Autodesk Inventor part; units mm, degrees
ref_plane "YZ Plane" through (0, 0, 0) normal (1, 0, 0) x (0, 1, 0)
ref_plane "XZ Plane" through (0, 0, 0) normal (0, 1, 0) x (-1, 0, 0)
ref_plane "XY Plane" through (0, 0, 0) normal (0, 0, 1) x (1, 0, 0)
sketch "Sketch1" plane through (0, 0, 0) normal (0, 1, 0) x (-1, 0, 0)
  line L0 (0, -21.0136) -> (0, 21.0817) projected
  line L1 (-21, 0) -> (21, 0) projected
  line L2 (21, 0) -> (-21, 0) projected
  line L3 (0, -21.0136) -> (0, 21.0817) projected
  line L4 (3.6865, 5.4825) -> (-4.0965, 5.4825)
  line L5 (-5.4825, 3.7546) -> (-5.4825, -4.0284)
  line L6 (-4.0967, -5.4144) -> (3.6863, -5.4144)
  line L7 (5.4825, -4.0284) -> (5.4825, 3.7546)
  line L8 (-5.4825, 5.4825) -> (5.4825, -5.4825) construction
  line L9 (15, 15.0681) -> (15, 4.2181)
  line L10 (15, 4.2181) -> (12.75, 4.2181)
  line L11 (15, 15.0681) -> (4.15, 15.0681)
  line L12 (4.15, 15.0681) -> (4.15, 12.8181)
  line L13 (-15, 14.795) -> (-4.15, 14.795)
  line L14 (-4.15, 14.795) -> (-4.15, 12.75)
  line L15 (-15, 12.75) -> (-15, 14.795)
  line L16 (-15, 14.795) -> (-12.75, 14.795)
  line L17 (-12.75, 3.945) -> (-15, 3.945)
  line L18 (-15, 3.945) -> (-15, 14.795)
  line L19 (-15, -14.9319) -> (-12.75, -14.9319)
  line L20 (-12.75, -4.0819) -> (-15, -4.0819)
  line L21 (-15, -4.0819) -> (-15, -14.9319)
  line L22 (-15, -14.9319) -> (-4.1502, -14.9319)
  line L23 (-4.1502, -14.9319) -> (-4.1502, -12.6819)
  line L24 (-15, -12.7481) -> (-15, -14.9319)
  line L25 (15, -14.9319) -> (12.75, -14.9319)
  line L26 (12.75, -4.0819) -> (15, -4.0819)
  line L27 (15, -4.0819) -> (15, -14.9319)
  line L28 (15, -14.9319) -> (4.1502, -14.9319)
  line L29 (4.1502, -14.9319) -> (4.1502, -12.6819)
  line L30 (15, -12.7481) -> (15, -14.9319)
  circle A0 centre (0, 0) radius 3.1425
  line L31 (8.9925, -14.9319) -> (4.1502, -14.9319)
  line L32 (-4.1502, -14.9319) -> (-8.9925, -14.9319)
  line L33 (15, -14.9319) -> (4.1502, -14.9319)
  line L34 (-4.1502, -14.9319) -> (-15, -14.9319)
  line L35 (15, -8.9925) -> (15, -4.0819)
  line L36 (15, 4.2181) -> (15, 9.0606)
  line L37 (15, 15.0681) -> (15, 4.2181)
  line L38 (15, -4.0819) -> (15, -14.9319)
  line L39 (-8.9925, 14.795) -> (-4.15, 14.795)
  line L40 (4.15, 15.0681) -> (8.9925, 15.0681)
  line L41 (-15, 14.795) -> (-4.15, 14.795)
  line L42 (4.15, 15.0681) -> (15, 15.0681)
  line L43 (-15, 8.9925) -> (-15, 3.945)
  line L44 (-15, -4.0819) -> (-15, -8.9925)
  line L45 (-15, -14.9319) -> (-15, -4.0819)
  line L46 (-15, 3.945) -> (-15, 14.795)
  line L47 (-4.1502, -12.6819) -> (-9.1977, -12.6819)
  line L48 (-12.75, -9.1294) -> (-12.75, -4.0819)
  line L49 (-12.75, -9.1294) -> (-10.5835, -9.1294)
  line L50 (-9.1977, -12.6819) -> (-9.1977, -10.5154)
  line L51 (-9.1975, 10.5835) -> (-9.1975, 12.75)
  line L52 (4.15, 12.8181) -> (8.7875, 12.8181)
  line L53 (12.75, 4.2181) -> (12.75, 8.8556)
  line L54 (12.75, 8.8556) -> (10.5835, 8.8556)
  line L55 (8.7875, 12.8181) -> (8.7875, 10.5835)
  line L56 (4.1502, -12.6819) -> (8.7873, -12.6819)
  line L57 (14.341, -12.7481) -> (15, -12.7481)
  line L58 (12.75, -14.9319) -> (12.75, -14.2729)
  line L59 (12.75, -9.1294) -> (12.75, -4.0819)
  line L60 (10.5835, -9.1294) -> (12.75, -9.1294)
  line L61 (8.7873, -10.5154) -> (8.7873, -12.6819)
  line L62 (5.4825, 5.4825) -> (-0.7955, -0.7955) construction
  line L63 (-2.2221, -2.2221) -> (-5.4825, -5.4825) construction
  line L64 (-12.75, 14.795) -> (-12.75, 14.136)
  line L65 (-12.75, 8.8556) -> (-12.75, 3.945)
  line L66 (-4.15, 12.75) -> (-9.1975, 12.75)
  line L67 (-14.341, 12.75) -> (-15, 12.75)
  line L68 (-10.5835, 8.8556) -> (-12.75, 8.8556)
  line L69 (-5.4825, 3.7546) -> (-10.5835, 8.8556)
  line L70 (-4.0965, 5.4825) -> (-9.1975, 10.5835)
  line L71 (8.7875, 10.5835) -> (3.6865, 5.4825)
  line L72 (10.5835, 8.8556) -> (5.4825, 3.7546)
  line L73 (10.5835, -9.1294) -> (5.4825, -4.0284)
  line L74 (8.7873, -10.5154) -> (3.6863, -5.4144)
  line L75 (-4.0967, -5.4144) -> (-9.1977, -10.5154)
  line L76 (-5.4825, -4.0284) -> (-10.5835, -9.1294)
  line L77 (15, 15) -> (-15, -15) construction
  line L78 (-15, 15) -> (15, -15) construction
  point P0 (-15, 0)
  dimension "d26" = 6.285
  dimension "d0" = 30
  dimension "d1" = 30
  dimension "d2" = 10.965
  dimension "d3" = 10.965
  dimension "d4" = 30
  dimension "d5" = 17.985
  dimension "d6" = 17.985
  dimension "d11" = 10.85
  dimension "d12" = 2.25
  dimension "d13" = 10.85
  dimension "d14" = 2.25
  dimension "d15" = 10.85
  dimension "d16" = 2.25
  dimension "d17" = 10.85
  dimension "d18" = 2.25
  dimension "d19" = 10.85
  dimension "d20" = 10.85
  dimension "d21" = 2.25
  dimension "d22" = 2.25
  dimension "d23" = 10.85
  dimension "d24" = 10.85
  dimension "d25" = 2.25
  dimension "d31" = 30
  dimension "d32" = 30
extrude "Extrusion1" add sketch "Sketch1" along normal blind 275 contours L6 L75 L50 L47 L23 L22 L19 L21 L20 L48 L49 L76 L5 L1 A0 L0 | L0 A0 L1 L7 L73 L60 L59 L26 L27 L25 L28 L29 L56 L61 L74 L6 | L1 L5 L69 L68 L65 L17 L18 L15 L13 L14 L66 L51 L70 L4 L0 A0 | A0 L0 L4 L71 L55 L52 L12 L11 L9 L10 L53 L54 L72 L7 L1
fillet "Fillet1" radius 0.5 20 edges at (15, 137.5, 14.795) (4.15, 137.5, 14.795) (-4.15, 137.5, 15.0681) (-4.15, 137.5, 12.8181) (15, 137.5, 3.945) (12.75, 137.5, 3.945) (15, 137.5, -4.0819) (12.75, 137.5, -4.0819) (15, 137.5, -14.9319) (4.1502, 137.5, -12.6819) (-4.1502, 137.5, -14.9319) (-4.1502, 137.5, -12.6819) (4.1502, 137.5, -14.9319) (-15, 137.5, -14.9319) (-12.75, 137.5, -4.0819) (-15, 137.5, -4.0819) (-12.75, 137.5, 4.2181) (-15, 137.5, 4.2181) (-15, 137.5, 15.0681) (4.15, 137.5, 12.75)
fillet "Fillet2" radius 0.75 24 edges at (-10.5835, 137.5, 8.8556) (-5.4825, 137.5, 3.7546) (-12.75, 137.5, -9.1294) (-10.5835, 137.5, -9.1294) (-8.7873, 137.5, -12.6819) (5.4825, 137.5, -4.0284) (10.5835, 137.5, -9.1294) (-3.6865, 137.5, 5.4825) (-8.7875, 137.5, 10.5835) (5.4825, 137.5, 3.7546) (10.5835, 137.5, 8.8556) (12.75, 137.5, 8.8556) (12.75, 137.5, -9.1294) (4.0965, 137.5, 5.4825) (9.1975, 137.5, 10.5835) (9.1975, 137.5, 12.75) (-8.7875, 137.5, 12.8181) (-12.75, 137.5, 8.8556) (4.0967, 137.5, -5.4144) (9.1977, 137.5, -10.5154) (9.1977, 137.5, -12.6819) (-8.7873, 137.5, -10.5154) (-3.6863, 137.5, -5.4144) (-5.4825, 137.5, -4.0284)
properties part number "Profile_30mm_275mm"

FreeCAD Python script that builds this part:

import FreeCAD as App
import Part
import Sketcher
from FreeCAD import Vector


def edges_at(feature, points):
    """Names of the edges that pass closest to the given points."""
    edges = feature.Shape.Edges
    near = lambda p: min(range(len(edges)), key=lambda i: edges[i].distToShape(Part.Vertex(*p))[0])
    return sorted({f"Edge{near(p) + 1}" for p in points})


def add_polygon(sketch, points):
    """Adds a closed chain of lines whose ends are joined by coincident constraints."""
    first, n = sketch.GeometryCount, len(points)
    for a, b in zip(points, points[1:] + points[:1]):
        sketch.addGeometry(Part.LineSegment(App.Vector(*a, 0), App.Vector(*b, 0)), False)
    for i in range(n):
        sketch.addConstraint(Sketcher.Constraint("Coincident", first + i, 2, first + (i + 1) % n, 1))

doc = App.newDocument("Part")
body = doc.addObject("PartDesign::Body", "Body")

# Sketch on XZ plane
sketch1 = body.newObject("Sketcher::SketchObject", "Sketch")
sketch1.AttachmentSupport = (doc.getObject("XZ_Plane"), [""])
sketch1.MapMode = "FlatFace"
add_polygon(sketch1, [(4.0967, -5.4144), (-3.6863, -5.4144), (-8.7873, -10.5154), (-8.7873, -12.6819), (-4.1502, -12.6819), (-4.1502, -14.9319), (-15, -14.9319), (-15, -4.0819), (-12.75, -4.0819), (-12.75, -9.1294), (-10.5835, -9.1294), (-5.4825, -4.0284), (-5.4825, 3.7546), (-10.5835, 8.8556), (-12.75, 8.8556), (-12.75, 4.2181), (-15, 4.2181), (-15, 15.0681), (-4.15, 15.0681), (-4.15, 12.8181), (-8.7875, 12.8181), (-8.7875, 10.5835), (-3.6865, 5.4825), (4.0965, 5.4825), (9.1975, 10.5835), (9.1975, 12.75), (4.15, 12.75), (4.15, 14.795), (15, 14.795), (15, 3.945), (12.75, 3.945), (12.75, 8.8556), (10.5835, 8.8556), (5.4825, 3.7546), (5.4825, -4.0284), (10.5835, -9.1294), (12.75, -9.1294), (12.75, -4.0819), (15, -4.0819), (15, -14.9319), (4.1502, -14.9319), (4.1502, -12.6819), (9.1977, -12.6819), (9.1977, -10.5154)])  # lines 0-43
sketch1.addGeometry(Part.Circle(Vector(0, 0, 0), Vector(0, 0, 1), 3.1425), False)  # 44
sketch1.addConstraint([
    Sketcher.Constraint("Horizontal", 0),
    Sketcher.Constraint("Vertical", 2),
    Sketcher.Constraint("Horizontal", 3),
    Sketcher.Constraint("Vertical", 4),
    Sketcher.Constraint("Horizontal", 5),
    Sketcher.Constraint("Vertical", 6),
    Sketcher.Constraint("Horizontal", 7),
    Sketcher.Constraint("Vertical", 8),
    Sketcher.Constraint("Horizontal", 9),
    Sketcher.Constraint("Vertical", 11),
    Sketcher.Constraint("Horizontal", 13),
    Sketcher.Constraint("Vertical", 14),
    Sketcher.Constraint("Horizontal", 15),
    Sketcher.Constraint("Vertical", 16),
    Sketcher.Constraint("Horizontal", 17),
    Sketcher.Constraint("Vertical", 18),
    Sketcher.Constraint("Horizontal", 19),
    Sketcher.Constraint("Vertical", 20),
    Sketcher.Constraint("Horizontal", 22),
    Sketcher.Constraint("Vertical", 24),
    Sketcher.Constraint("Horizontal", 25),
    Sketcher.Constraint("Vertical", 26),
    Sketcher.Constraint("Horizontal", 27),
    Sketcher.Constraint("Vertical", 28),
    Sketcher.Constraint("Horizontal", 29),
    Sketcher.Constraint("Vertical", 30),
    Sketcher.Constraint("Horizontal", 31),
    Sketcher.Constraint("Vertical", 33),
    Sketcher.Constraint("Horizontal", 35),
    Sketcher.Constraint("Vertical", 36),
    Sketcher.Constraint("Horizontal", 37),
    Sketcher.Constraint("Vertical", 38),
    Sketcher.Constraint("Horizontal", 39),
    Sketcher.Constraint("Vertical", 40),
    Sketcher.Constraint("Horizontal", 41),
    Sketcher.Constraint("Vertical", 42),
    Sketcher.Constraint("Coincident", 44, 3, -1, 1),
    Sketcher.Constraint("Symmetric", 13, 2, 30, 2, -2),
    Sketcher.Constraint("Symmetric", 11, 2, 32, 2, -2),
    Sketcher.Constraint("Symmetric", 9, 2, 34, 2, -2),
    Sketcher.Constraint("Symmetric", 7, 2, 36, 2, -2),
    Sketcher.Constraint("Symmetric", 5, 2, 38, 2, -2),
    Sketcher.Constraint("Symmetric", 3, 2, 40, 2, -2),
    Sketcher.Constraint("Parallel", 1, 10),
    Sketcher.Constraint("Perpendicular", 10, 12),
    Sketcher.Constraint("Parallel", 12, 21),
    Sketcher.Constraint("Perpendicular", 21, 23),
    Sketcher.Constraint("Parallel", 23, 32),
    Sketcher.Constraint("Perpendicular", 32, 34),
    Sketcher.Constraint("Parallel", 34, 43),
    Sketcher.Constraint("Horizontal", 20, 2, 23, 2),
    Sketcher.Constraint("Horizontal", 10, 2, 33, 2),
    Sketcher.Constraint("Horizontal", 1, 2, 42, 2),
    Sketcher.Constraint("Vertical", 9, 2, 12, 2),
    Sketcher.Constraint("Vertical", 8, 2, 13, 2),
    Sketcher.Constraint("Vertical", 6, 2, 15, 2),
    Sketcher.Constraint("Vertical", 4, 2, 17, 2),
    Sketcher.Constraint("Vertical", 2, 2, 19, 2),
    Sketcher.Constraint("Vertical", 0, 2, 21, 2),
    Sketcher.Constraint("Vertical", 28, 2, 37, 2),
    Sketcher.Constraint("Vertical", 26, 2, 39, 2),
    Sketcher.Constraint("Vertical", 24, 2, 41, 2),
    Sketcher.Constraint("Equal", 35, 2),
    Sketcher.Constraint("Equal", 37, 4),
    Sketcher.Constraint("Equal", 27, 6),
    Sketcher.Constraint("Equal", 41, 8),
    Sketcher.Constraint("Equal", 22, 11),
    Sketcher.Constraint("Equal", 19, 14),
    Sketcher.Constraint("Equal", 6, 16),
    Sketcher.Constraint("Equal", 4, 18),
    Sketcher.Constraint("Equal", 2, 24),
    Sketcher.Constraint("Equal", 16, 28),
    Sketcher.Constraint("Equal", 1, 10),
    Sketcher.Constraint("Diameter", 44, 6.285),
    Sketcher.Constraint("DistanceX", 7, 1, 7, 2, 2.25),
    Sketcher.Constraint("DistanceX", 17, 1, 17, 2, 10.85),
    Sketcher.Constraint("DistanceX", 5, 2, -1, 1, 15.0),
    Sketcher.Constraint("DistanceX", 0, 2, 0, 1, 7.783),
    Sketcher.Constraint("DistanceX", 3, 1, 3, 2, 4.637),
    Sketcher.Constraint("DistanceY", 26, 1, 26, 2, 2.045),
    Sketcher.Constraint("DistanceY", -1, 1, 24, 2, 12.75),
    Sketcher.Constraint("Distance", 1, 7.214),
    Sketcher.Constraint("DistanceX", 9, 1, 9, 2, 2.1665),
    Sketcher.Constraint("DistanceY", 20, 2, 20, 1, 2.2346),
])
pad1 = body.newObject("PartDesign::Pad", "Pad")
pad1.Profile = sketch1
pad1.Length = 275
pad1.Reversed = True
doc.recompute()

fillet = body.newObject("PartDesign::Fillet", "Fillet")
fillet.Base = (pad1, edges_at(pad1, [
    (15, 137.5, 14.795),
    (4.15, 137.5, 14.795),
    (-4.15, 137.5, 15.068),
    (-4.15, 137.5, 12.818),
    (15, 137.5, 3.945),
    (12.75, 137.5, 3.945),
    (15, 137.5, -4.082),
    (12.75, 137.5, -4.082),
    (15, 137.5, -14.932),
    (4.15, 137.5, -12.682),
    (-4.15, 137.5, -14.932),
    (-4.15, 137.5, -12.682),
    (4.15, 137.5, -14.932),
    (-15, 137.5, -14.932),
    (-12.75, 137.5, -4.082),
    (-15, 137.5, -4.082),
    (-12.75, 137.5, 4.218),
    (-15, 137.5, 4.218),
    (-15, 137.5, 15.068),
    (4.15, 137.5, 12.75),
]))
fillet.Radius = 0.5
doc.recompute()

fillet2 = body.newObject("PartDesign::Fillet", "Fillet001")
fillet2.Base = (fillet, edges_at(fillet, [
    (-10.584, 137.5, 8.856),
    (-5.482, 137.5, 3.755),
    (-12.75, 137.5, -9.129),
    (-10.584, 137.5, -9.129),
    (-8.787, 137.5, -12.682),
    (5.482, 137.5, -4.028),
    (10.584, 137.5, -9.129),
    (-3.687, 137.5, 5.482),
    (-8.787, 137.5, 10.584),
    (5.482, 137.5, 3.755),
    (10.584, 137.5, 8.856),
    (12.75, 137.5, 8.856),
    (12.75, 137.5, -9.129),
    (4.096, 137.5, 5.482),
    (9.197, 137.5, 10.584),
    (9.197, 137.5, 12.75),
    (-8.787, 137.5, 12.818),
    (-12.75, 137.5, 8.856),
    (4.097, 137.5, -5.414),
    (9.198, 137.5, -10.515),
    (9.198, 137.5, -12.682),
    (-8.787, 137.5, -10.515),
    (-3.686, 137.5, -5.414),
    (-5.482, 137.5, -4.028),
]))
fillet2.Radius = 0.75

doc.recompute()
